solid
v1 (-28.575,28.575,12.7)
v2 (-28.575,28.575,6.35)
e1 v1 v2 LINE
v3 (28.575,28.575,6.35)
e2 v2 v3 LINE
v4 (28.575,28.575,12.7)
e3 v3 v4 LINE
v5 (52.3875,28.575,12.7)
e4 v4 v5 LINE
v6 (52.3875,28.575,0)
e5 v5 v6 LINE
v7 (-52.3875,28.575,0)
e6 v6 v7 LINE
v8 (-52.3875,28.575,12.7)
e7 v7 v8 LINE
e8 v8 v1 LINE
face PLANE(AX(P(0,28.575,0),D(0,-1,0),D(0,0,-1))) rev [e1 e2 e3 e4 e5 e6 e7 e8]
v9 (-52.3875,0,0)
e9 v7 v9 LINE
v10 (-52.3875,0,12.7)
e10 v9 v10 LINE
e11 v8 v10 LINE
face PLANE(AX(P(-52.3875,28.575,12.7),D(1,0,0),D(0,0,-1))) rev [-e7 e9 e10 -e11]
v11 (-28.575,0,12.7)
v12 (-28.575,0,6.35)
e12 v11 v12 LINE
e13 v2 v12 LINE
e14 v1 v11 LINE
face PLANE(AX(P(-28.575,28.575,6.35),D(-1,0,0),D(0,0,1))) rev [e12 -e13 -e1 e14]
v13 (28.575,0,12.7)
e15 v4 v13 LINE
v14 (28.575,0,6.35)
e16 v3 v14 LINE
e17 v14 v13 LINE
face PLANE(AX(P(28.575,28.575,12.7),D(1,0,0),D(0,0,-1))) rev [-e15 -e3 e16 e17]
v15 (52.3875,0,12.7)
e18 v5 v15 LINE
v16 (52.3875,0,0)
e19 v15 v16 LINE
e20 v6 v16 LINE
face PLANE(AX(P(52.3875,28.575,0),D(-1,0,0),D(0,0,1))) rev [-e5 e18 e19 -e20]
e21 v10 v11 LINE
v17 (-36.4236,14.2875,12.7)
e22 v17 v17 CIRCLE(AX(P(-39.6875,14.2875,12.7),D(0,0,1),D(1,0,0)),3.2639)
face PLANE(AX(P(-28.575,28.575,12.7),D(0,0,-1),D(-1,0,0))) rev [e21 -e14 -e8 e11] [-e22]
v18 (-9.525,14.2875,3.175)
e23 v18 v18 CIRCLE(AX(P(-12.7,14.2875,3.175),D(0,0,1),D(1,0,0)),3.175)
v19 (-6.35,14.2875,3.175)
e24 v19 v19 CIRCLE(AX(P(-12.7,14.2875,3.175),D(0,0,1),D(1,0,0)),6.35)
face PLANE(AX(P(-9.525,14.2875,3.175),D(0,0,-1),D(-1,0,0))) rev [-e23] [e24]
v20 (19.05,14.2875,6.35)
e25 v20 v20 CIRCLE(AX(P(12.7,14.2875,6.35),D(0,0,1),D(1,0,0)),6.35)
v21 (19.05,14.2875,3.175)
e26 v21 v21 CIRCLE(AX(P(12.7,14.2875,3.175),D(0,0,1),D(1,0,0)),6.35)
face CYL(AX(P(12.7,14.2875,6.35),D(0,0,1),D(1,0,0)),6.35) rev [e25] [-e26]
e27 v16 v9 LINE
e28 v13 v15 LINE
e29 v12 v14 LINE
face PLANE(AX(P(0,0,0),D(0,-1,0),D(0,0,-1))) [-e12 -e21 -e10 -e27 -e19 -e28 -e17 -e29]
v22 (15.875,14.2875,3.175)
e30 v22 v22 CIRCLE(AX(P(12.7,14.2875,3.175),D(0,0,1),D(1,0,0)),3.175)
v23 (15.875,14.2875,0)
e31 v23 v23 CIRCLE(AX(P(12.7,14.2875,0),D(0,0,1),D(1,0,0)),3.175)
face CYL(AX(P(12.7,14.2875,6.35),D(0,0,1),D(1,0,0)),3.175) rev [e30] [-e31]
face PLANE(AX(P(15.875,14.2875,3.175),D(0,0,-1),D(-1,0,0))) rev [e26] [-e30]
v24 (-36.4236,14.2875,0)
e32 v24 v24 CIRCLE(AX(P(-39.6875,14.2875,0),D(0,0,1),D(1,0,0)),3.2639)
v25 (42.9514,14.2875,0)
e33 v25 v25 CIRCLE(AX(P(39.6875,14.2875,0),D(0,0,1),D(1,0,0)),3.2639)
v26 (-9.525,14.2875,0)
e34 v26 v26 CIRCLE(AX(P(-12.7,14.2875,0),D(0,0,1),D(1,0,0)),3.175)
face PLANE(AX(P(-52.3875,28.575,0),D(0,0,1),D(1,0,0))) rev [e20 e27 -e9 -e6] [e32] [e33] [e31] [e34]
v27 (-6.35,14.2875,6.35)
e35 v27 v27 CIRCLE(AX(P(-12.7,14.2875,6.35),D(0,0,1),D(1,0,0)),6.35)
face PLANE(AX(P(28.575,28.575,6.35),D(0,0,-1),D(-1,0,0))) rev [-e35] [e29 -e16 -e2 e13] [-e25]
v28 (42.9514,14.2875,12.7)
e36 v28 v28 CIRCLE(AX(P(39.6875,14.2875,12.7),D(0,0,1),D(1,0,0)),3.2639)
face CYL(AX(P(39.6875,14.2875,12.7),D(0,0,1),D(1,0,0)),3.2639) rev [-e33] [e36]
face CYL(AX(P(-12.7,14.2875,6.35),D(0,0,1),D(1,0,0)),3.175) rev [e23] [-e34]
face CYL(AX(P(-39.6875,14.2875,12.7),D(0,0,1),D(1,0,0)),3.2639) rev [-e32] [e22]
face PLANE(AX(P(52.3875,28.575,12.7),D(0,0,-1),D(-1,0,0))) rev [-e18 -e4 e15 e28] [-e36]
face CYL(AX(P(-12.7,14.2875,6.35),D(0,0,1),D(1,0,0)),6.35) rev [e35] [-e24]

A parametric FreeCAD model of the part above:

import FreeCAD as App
import Part
import Sketcher

V = App.Vector
Q = App.Units.Quantity

doc = App.newDocument("Part")
body = doc.addObject("PartDesign::Body", "Body")

sketch1 = body.newObject("Sketcher::SketchObject", "Sketch")
sketch1.AttachmentSupport = (doc.getObject("XZ_Plane"), [""])
sketch1.MapMode = "FlatFace"
sketch1.addGeometry(Part.LineSegment(V(52.3875, 0, 0), V(-52.3875, 0, 0)), False)
sketch1.addGeometry(Part.LineSegment(V(-52.3875, 0, 0), V(-52.3875, 12.7, 0)), False)
sketch1.addGeometry(Part.LineSegment(V(-52.3875, 12.7, 0), V(-28.575, 12.7, 0)), False)
sketch1.addGeometry(Part.LineSegment(V(-28.575, 12.7, 0), V(-28.575, 6.35, 0)), False)
sketch1.addGeometry(Part.LineSegment(V(-28.575, 6.35, 0), V(28.575, 6.35, 0)), False)
sketch1.addGeometry(Part.LineSegment(V(28.575, 6.35, 0), V(28.575, 12.7, 0)), False)
sketch1.addGeometry(Part.LineSegment(V(28.575, 12.7, 0), V(52.3875, 12.7, 0)), False)
sketch1.addGeometry(Part.LineSegment(V(52.3875, 12.7, 0), V(52.3875, 0, 0)), False)
sketch1.addConstraint(Sketcher.Constraint("Coincident", 0, 2, 1, 1))
sketch1.addConstraint(Sketcher.Constraint("Coincident", 1, 2, 2, 1))
sketch1.addConstraint(Sketcher.Constraint("Coincident", 2, 2, 3, 1))
sketch1.addConstraint(Sketcher.Constraint("Coincident", 3, 2, 4, 1))
sketch1.addConstraint(Sketcher.Constraint("Coincident", 4, 2, 5, 1))
sketch1.addConstraint(Sketcher.Constraint("Coincident", 5, 2, 6, 1))
sketch1.addConstraint(Sketcher.Constraint("Coincident", 6, 2, 7, 1))
sketch1.addConstraint(Sketcher.Constraint("Coincident", 7, 2, 0, 1))
sketch1.addConstraint(Sketcher.Constraint("Horizontal", 0))
sketch1.addConstraint(Sketcher.Constraint("Vertical", 1))
sketch1.addConstraint(Sketcher.Constraint("Horizontal", 2))
sketch1.addConstraint(Sketcher.Constraint("Vertical", 3))
sketch1.addConstraint(Sketcher.Constraint("Horizontal", 4))
sketch1.addConstraint(Sketcher.Constraint("Vertical", 5))
sketch1.addConstraint(Sketcher.Constraint("Horizontal", 6))
sketch1.addConstraint(Sketcher.Constraint("Vertical", 7))
sketch1.addConstraint(Sketcher.Constraint("Symmetric", 0, 2, 7, 2, -1, 1))
sketch1.addConstraint(Sketcher.Constraint("Symmetric", 2, 2, 5, 2, -2))
sketch1.addConstraint(Sketcher.Constraint("DistanceY", 1, 1, 1, 2, Q("0.5 in")))
sketch1.addConstraint(Sketcher.Constraint("DistanceX", 4, 1, 4, 2, Q("2.25 in")))
sketch1.addConstraint(Sketcher.Constraint("DistanceY", 3, 2, 3, 1, Q("0.25 in")))
sketch1.addConstraint(Sketcher.Constraint("DistanceX", 0, 2, 0, 1, Q("4.125 in")))
pad1 = body.newObject("PartDesign::Pad", "Pad")
pad1.Profile = sketch1
pad1.Length = Q("1.125 in")
pad1.Reversed = True

sketch2 = body.newObject("Sketcher::SketchObject", "Sketch001")
sketch2.AttachmentSupport = (doc.getObject("XY_Plane"), [""])
sketch2.MapMode = "FlatFace"
sketch2.AttachmentOffset = App.Placement(V(0, 0, 0.25 * 25.4), App.Rotation())
sketch2.addGeometry(Part.Circle(V(12.7, 14.2875, 0), V(0, 0, 1), 3.175), False)
sketch2.addGeometry(Part.Circle(V(-12.7, 14.2875, 0), V(0, 0, 1), 3.175), False)
sketch2.addConstraint(Sketcher.Constraint("Equal", 0, 1))
sketch2.addConstraint(Sketcher.Constraint("Symmetric", 0, 3, 1, 3, -2))
sketch2.addConstraint(Sketcher.Constraint("Diameter", 0, Q("0.25 in")))
sketch2.addConstraint(Sketcher.Constraint("DistanceX", 1, 3, 0, 3, Q("1 in")))
sketch2.addConstraint(Sketcher.Constraint("DistanceY", -1, 1, 0, 3, Q("0.5625 in")))
doc.recompute()
hole = body.newObject("PartDesign::Hole", "Hole")
hole.Profile = sketch2
hole.ThreadType = "None"
hole.Diameter = Q("0.25 in")
hole.DepthType = "Dimension"
hole.Depth = Q("0.25 in")
hole.DrillPoint = "Angled"
hole.DrillPointAngle = 118
hole.HoleCutType = "Counterbore"
hole.HoleCutDiameter = Q("0.5 in")
hole.HoleCutDepth = Q("0.125 in")

sketch3 = body.newObject("Sketcher::SketchObject", "Sketch002")
sketch3.AttachmentSupport = (doc.getObject("XY_Plane"), [""])
sketch3.MapMode = "FlatFace"
sketch3.AttachmentOffset = App.Placement(V(0, 0, 0.5 * 25.4), App.Rotation())
sketch3.addGeometry(Part.Circle(V(-39.6875, 14.2875, 0), V(0, 0, 1), 3.2639), False)
sketch3.addGeometry(Part.Circle(V(39.6875, 14.2875, 0), V(0, 0, 1), 3.2639), False)
sketch3.addConstraint(Sketcher.Constraint("Equal", 0, 1))
sketch3.addConstraint(Sketcher.Constraint("Symmetric", 0, 3, 1, 3, -2))
sketch3.addConstraint(Sketcher.Constraint("Diameter", 0, Q("0.257 in")))
sketch3.addConstraint(Sketcher.Constraint("DistanceX", 0, 3, -1, 1, Q("1.5625 in")))
sketch3.addConstraint(Sketcher.Constraint("DistanceY", -1, 1, 0, 3, Q("0.5625 in")))
doc.recompute()
hole2 = body.newObject("PartDesign::Hole", "Hole001")
hole2.Profile = sketch3
hole2.ThreadType = "None"
hole2.Diameter = Q("0.257 in")
hole2.DepthType = "ThroughAll"

doc.recompute()
